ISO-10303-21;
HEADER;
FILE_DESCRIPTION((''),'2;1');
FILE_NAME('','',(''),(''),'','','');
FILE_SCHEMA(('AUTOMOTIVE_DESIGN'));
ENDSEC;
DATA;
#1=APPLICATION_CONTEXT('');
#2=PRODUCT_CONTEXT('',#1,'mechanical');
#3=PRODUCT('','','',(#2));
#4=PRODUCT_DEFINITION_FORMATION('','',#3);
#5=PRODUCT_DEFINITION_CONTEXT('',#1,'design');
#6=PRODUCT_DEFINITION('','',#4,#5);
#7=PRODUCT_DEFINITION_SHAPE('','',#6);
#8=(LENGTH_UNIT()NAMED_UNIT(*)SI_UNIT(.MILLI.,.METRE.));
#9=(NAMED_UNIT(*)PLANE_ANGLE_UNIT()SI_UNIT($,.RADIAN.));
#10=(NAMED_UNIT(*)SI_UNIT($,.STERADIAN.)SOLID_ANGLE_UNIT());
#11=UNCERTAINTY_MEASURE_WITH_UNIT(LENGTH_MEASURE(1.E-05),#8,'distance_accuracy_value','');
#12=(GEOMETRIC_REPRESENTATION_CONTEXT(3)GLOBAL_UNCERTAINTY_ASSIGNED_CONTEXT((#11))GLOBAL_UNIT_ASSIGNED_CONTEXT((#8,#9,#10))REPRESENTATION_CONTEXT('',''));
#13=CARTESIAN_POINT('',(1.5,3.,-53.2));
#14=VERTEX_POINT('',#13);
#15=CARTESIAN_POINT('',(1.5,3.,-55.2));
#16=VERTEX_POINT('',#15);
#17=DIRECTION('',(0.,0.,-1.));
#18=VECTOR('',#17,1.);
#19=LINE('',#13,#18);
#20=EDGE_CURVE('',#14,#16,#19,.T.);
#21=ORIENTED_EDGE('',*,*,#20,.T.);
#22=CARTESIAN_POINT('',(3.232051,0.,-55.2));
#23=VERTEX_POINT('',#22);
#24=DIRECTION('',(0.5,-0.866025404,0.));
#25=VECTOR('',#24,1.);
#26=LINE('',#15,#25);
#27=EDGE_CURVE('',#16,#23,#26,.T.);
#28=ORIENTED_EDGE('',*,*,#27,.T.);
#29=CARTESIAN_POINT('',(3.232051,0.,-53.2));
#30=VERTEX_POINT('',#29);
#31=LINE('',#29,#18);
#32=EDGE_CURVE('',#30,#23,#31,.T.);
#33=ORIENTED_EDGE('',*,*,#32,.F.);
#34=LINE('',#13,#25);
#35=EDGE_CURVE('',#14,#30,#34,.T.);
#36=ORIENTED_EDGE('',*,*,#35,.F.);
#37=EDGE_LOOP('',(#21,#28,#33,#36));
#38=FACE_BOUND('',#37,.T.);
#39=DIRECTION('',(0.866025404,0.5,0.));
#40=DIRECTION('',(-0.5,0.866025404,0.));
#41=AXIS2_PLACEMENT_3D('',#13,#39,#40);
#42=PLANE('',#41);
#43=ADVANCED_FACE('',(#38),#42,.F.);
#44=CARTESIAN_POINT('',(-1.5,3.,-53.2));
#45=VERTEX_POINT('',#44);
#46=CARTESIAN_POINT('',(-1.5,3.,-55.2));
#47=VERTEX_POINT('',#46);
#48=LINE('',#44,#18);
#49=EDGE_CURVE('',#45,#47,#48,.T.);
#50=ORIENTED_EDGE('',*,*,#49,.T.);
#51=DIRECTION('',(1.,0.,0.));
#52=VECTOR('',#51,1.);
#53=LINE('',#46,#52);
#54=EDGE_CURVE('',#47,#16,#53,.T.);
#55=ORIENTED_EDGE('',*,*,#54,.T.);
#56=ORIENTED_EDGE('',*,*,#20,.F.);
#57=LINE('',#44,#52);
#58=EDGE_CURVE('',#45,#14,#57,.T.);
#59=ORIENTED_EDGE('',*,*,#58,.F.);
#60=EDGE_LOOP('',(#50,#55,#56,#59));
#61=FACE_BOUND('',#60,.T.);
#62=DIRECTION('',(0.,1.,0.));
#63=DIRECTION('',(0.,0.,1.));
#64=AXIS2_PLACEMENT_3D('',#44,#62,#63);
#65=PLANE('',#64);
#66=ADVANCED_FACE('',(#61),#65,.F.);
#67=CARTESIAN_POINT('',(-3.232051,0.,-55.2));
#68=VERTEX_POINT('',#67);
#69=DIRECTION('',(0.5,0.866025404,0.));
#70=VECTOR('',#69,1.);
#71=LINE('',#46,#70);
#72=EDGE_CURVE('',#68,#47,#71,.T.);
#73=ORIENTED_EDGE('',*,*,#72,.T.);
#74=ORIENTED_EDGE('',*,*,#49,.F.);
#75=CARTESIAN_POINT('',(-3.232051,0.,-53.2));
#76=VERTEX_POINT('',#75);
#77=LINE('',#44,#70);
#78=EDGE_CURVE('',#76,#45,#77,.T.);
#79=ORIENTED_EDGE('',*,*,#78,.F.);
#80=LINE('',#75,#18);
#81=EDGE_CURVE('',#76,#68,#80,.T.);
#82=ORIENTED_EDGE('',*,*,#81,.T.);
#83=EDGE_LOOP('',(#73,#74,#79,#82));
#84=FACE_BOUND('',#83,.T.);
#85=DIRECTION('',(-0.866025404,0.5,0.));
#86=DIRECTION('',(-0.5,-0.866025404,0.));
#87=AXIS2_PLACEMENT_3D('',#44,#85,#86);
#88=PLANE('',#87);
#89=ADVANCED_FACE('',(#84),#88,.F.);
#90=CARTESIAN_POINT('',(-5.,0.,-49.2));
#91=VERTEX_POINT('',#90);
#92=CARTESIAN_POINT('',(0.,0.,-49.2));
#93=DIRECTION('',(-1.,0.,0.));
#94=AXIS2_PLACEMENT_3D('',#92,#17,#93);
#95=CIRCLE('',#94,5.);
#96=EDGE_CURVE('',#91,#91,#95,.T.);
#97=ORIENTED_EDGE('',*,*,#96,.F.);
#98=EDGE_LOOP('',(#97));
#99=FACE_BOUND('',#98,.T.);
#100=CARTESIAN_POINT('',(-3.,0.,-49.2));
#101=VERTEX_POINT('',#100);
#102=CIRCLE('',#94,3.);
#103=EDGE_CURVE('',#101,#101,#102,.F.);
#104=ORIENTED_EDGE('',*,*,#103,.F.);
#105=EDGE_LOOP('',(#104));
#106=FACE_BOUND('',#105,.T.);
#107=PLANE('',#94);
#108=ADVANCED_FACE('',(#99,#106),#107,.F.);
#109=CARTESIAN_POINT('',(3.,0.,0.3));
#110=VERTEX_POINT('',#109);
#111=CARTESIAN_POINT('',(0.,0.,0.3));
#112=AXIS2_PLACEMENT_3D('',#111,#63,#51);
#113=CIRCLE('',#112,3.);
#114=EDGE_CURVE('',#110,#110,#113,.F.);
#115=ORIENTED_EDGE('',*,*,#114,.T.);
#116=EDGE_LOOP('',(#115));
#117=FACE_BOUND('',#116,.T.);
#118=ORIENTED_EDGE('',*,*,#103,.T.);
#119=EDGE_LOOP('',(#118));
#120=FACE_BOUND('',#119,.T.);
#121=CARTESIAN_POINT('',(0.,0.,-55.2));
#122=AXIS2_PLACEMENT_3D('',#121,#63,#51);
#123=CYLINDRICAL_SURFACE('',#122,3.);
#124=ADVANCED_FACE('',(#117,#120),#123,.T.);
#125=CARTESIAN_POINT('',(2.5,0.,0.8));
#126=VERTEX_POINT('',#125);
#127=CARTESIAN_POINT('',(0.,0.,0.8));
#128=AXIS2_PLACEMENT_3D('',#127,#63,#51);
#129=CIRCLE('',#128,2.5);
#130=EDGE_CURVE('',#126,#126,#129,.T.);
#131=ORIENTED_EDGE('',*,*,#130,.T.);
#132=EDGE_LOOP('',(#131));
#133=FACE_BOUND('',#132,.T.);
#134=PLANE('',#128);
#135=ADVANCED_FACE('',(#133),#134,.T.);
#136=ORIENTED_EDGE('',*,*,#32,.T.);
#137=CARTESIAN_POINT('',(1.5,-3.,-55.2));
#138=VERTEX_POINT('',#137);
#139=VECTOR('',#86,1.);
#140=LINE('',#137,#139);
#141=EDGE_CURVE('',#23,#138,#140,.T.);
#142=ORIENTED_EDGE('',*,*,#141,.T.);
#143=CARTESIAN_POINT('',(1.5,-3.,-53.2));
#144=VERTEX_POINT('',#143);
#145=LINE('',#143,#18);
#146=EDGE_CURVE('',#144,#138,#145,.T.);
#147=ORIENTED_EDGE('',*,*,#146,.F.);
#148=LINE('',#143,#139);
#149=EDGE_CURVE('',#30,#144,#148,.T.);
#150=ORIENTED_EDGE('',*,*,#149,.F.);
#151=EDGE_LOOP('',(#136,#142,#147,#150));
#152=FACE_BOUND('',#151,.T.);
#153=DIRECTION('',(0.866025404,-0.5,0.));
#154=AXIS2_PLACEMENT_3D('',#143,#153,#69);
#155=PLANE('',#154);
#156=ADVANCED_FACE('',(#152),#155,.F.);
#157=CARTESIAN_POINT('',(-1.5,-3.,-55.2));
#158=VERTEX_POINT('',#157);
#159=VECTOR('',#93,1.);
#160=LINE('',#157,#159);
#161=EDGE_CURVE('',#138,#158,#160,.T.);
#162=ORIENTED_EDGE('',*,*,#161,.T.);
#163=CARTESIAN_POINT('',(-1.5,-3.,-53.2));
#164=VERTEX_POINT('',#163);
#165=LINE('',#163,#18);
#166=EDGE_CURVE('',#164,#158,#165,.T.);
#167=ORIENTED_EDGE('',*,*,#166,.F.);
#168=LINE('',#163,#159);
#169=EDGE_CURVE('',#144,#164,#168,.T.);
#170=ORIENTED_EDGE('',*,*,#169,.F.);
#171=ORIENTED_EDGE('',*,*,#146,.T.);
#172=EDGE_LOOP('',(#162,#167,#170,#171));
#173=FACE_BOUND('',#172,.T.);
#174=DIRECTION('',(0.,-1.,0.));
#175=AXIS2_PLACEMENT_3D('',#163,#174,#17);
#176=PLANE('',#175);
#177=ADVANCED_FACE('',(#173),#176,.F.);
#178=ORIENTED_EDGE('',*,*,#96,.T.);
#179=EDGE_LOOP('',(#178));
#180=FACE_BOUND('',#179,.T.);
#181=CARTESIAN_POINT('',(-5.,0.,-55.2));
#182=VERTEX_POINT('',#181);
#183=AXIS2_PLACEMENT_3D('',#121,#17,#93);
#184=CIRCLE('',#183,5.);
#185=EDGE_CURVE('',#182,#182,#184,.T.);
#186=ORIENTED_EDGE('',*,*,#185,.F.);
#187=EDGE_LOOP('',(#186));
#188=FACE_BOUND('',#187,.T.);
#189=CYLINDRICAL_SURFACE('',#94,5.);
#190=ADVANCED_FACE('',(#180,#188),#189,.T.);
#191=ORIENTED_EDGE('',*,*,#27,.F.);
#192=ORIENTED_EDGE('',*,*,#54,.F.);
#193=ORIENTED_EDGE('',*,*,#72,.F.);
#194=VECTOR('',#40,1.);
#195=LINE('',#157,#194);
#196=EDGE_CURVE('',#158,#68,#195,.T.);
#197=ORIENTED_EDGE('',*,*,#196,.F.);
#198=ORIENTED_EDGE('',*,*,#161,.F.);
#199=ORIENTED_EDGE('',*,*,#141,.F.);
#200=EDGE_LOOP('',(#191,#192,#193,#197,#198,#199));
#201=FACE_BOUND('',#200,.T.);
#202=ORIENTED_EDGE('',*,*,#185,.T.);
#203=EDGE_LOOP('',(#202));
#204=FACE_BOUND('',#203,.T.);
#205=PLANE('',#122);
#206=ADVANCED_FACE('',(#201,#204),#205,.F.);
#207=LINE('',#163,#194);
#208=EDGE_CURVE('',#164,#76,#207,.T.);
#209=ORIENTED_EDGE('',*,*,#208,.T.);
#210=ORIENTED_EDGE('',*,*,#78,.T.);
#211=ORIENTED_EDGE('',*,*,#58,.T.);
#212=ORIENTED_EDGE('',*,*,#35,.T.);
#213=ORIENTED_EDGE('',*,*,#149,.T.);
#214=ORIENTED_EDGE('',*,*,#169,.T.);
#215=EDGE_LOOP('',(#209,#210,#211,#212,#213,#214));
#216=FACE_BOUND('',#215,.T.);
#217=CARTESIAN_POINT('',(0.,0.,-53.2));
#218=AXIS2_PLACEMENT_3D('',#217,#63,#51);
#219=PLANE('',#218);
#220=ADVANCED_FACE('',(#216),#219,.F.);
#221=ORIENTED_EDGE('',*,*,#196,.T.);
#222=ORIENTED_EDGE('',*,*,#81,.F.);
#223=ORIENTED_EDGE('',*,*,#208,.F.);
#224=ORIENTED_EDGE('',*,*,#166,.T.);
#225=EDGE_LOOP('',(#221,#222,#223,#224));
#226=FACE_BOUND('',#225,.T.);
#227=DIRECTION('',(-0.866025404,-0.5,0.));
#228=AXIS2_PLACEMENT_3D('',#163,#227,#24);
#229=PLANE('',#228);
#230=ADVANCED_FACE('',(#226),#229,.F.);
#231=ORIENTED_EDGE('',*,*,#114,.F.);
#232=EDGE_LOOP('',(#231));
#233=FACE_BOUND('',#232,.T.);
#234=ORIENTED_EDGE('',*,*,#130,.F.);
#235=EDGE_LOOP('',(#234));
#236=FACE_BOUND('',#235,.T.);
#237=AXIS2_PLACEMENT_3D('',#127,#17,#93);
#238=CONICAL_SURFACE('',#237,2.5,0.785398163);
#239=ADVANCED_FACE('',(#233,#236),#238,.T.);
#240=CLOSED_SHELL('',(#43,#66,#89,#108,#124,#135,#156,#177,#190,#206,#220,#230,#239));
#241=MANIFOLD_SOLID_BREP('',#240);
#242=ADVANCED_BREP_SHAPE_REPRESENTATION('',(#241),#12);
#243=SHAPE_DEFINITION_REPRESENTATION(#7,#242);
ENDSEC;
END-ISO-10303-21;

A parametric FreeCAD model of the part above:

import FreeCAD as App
import Part
import Sketcher

V = App.Vector
Q = App.Units.Quantity


def edges_at(feature, points):
    """Names of the edges that pass closest to the given points."""
    edges = feature.Shape.Edges
    near = lambda p: min(range(len(edges)), key=lambda i: edges[i].distToShape(Part.Vertex(*p))[0])
    return sorted({f"Edge{near(p) + 1}" for p in points})

doc = App.newDocument("Part")
body = doc.addObject("PartDesign::Body", "Body")

# Sketch on XY plane
sketch1 = body.newObject("Sketcher::SketchObject", "Sketch")
sketch1.AttachmentSupport = (doc.getObject("XY_Plane"), [""])
sketch1.MapMode = "FlatFace"
sketch1.AttachmentOffset = App.Placement(V(0, 0, -11.2), App.Rotation())
sketch1.addGeometry(Part.Circle(V(0, 0, 0), V(0, 0, 1), 3), False)
sketch1.addConstraint(Sketcher.Constraint("Coincident", 0, 3, -1, 1))
sketch1.addConstraint(Sketcher.Constraint("Diameter", 0, Q("6 mm")))
pad1 = body.newObject("PartDesign::Pad", "Pad")
pad1.Profile = sketch1
pad1.Type = "TwoLengths"
pad1.Length = 12
pad1.Length2 = 44
doc.recompute()

chamfer = body.newObject("PartDesign::Chamfer", "Chamfer")
chamfer.Base = (pad1, edges_at(pad1, [(-3, 0, 0.8), (-3, 0, -55.2)]))
chamfer.Size = 0.5

# Sketch on XY plane
sketch2 = body.newObject("Sketcher::SketchObject", "Sketch001")
sketch2.AttachmentSupport = (doc.getObject("XY_Plane"), [""])
sketch2.MapMode = "FlatFace"
sketch2.AttachmentOffset = App.Placement(V(0, 0, -55.2), App.Rotation())
sketch2.addGeometry(Part.Circle(V(0, 0, 0), V(0, 0, 1), 5), False)
sketch2.addConstraint(Sketcher.Constraint("Coincident", 0, 3, -1, 1))
sketch2.addConstraint(Sketcher.Constraint("Diameter", 0, Q("10 mm")))
pad2 = body.newObject("PartDesign::Pad", "Pad001")
pad2.Profile = sketch2
pad2.Length = 6

# Sketch on XY plane
sketch3 = body.newObject("Sketcher::SketchObject", "Sketch002")
sketch3.AttachmentSupport = (doc.getObject("XY_Plane"), [""])
sketch3.MapMode = "FlatFace"
sketch3.AttachmentOffset = App.Placement(V(0, 0, -55.2), App.Rotation())
sketch3.addGeometry(Part.LineSegment(V(-1.5, 3, 0), V(1.5, 3, 0)), False)
sketch3.addGeometry(Part.LineSegment(V(1.5, 3, 0), V(3.2, 0, 0)), False)
sketch3.addGeometry(Part.LineSegment(V(3.2, 0, 0), V(1.5, -3, 0)), False)
sketch3.addGeometry(Part.LineSegment(V(1.5, -3, 0), V(-1.5, -3, 0)), False)
sketch3.addGeometry(Part.LineSegment(V(-1.5, -3, 0), V(-3.2, 0, 0)), False)
sketch3.addGeometry(Part.LineSegment(V(-3.2, 0, 0), V(-1.5, 3, 0)), False)
sketch3.addConstraint(Sketcher.Constraint("Coincident", 0, 2, 1, 1))
sketch3.addConstraint(Sketcher.Constraint("Coincident", 1, 2, 2, 1))
sketch3.addConstraint(Sketcher.Constraint("Coincident", 2, 2, 3, 1))
sketch3.addConstraint(Sketcher.Constraint("Coincident", 3, 2, 4, 1))
sketch3.addConstraint(Sketcher.Constraint("Coincident", 4, 2, 5, 1))
sketch3.addConstraint(Sketcher.Constraint("Coincident", 5, 2, 0, 1))
sketch3.addConstraint(Sketcher.Constraint("Horizontal", 0))
sketch3.addConstraint(Sketcher.Constraint("Horizontal", 3))
sketch3.addConstraint(Sketcher.Constraint("Symmetric", 0, 2, 3, 2, -1, 1))
sketch3.addConstraint(Sketcher.Constraint("Symmetric", 1, 2, 4, 2, -1, 1))
sketch3.addConstraint(Sketcher.Constraint("PointOnObject", 1, 2, -1))
sketch3.addConstraint(Sketcher.Constraint("Parallel", 2, 5))
sketch3.addConstraint(Sketcher.Constraint("Vertical", 0, 2, 2, 2))
sketch3.addConstraint(Sketcher.Constraint("DistanceX", 0, 1, 0, 2, Q("3 mm")))
sketch3.addConstraint(Sketcher.Constraint("Angle", 1, Q("-60 deg")))
sketch3.addConstraint(Sketcher.Constraint("DistanceY", -1, 1, 0, 2, Q("3 mm")))
pocket1 = body.newObject("PartDesign::Pocket", "Pocket")
pocket1.Profile = sketch3
pocket1.Length = 2
pocket1.Reversed = True

doc.recompute()
